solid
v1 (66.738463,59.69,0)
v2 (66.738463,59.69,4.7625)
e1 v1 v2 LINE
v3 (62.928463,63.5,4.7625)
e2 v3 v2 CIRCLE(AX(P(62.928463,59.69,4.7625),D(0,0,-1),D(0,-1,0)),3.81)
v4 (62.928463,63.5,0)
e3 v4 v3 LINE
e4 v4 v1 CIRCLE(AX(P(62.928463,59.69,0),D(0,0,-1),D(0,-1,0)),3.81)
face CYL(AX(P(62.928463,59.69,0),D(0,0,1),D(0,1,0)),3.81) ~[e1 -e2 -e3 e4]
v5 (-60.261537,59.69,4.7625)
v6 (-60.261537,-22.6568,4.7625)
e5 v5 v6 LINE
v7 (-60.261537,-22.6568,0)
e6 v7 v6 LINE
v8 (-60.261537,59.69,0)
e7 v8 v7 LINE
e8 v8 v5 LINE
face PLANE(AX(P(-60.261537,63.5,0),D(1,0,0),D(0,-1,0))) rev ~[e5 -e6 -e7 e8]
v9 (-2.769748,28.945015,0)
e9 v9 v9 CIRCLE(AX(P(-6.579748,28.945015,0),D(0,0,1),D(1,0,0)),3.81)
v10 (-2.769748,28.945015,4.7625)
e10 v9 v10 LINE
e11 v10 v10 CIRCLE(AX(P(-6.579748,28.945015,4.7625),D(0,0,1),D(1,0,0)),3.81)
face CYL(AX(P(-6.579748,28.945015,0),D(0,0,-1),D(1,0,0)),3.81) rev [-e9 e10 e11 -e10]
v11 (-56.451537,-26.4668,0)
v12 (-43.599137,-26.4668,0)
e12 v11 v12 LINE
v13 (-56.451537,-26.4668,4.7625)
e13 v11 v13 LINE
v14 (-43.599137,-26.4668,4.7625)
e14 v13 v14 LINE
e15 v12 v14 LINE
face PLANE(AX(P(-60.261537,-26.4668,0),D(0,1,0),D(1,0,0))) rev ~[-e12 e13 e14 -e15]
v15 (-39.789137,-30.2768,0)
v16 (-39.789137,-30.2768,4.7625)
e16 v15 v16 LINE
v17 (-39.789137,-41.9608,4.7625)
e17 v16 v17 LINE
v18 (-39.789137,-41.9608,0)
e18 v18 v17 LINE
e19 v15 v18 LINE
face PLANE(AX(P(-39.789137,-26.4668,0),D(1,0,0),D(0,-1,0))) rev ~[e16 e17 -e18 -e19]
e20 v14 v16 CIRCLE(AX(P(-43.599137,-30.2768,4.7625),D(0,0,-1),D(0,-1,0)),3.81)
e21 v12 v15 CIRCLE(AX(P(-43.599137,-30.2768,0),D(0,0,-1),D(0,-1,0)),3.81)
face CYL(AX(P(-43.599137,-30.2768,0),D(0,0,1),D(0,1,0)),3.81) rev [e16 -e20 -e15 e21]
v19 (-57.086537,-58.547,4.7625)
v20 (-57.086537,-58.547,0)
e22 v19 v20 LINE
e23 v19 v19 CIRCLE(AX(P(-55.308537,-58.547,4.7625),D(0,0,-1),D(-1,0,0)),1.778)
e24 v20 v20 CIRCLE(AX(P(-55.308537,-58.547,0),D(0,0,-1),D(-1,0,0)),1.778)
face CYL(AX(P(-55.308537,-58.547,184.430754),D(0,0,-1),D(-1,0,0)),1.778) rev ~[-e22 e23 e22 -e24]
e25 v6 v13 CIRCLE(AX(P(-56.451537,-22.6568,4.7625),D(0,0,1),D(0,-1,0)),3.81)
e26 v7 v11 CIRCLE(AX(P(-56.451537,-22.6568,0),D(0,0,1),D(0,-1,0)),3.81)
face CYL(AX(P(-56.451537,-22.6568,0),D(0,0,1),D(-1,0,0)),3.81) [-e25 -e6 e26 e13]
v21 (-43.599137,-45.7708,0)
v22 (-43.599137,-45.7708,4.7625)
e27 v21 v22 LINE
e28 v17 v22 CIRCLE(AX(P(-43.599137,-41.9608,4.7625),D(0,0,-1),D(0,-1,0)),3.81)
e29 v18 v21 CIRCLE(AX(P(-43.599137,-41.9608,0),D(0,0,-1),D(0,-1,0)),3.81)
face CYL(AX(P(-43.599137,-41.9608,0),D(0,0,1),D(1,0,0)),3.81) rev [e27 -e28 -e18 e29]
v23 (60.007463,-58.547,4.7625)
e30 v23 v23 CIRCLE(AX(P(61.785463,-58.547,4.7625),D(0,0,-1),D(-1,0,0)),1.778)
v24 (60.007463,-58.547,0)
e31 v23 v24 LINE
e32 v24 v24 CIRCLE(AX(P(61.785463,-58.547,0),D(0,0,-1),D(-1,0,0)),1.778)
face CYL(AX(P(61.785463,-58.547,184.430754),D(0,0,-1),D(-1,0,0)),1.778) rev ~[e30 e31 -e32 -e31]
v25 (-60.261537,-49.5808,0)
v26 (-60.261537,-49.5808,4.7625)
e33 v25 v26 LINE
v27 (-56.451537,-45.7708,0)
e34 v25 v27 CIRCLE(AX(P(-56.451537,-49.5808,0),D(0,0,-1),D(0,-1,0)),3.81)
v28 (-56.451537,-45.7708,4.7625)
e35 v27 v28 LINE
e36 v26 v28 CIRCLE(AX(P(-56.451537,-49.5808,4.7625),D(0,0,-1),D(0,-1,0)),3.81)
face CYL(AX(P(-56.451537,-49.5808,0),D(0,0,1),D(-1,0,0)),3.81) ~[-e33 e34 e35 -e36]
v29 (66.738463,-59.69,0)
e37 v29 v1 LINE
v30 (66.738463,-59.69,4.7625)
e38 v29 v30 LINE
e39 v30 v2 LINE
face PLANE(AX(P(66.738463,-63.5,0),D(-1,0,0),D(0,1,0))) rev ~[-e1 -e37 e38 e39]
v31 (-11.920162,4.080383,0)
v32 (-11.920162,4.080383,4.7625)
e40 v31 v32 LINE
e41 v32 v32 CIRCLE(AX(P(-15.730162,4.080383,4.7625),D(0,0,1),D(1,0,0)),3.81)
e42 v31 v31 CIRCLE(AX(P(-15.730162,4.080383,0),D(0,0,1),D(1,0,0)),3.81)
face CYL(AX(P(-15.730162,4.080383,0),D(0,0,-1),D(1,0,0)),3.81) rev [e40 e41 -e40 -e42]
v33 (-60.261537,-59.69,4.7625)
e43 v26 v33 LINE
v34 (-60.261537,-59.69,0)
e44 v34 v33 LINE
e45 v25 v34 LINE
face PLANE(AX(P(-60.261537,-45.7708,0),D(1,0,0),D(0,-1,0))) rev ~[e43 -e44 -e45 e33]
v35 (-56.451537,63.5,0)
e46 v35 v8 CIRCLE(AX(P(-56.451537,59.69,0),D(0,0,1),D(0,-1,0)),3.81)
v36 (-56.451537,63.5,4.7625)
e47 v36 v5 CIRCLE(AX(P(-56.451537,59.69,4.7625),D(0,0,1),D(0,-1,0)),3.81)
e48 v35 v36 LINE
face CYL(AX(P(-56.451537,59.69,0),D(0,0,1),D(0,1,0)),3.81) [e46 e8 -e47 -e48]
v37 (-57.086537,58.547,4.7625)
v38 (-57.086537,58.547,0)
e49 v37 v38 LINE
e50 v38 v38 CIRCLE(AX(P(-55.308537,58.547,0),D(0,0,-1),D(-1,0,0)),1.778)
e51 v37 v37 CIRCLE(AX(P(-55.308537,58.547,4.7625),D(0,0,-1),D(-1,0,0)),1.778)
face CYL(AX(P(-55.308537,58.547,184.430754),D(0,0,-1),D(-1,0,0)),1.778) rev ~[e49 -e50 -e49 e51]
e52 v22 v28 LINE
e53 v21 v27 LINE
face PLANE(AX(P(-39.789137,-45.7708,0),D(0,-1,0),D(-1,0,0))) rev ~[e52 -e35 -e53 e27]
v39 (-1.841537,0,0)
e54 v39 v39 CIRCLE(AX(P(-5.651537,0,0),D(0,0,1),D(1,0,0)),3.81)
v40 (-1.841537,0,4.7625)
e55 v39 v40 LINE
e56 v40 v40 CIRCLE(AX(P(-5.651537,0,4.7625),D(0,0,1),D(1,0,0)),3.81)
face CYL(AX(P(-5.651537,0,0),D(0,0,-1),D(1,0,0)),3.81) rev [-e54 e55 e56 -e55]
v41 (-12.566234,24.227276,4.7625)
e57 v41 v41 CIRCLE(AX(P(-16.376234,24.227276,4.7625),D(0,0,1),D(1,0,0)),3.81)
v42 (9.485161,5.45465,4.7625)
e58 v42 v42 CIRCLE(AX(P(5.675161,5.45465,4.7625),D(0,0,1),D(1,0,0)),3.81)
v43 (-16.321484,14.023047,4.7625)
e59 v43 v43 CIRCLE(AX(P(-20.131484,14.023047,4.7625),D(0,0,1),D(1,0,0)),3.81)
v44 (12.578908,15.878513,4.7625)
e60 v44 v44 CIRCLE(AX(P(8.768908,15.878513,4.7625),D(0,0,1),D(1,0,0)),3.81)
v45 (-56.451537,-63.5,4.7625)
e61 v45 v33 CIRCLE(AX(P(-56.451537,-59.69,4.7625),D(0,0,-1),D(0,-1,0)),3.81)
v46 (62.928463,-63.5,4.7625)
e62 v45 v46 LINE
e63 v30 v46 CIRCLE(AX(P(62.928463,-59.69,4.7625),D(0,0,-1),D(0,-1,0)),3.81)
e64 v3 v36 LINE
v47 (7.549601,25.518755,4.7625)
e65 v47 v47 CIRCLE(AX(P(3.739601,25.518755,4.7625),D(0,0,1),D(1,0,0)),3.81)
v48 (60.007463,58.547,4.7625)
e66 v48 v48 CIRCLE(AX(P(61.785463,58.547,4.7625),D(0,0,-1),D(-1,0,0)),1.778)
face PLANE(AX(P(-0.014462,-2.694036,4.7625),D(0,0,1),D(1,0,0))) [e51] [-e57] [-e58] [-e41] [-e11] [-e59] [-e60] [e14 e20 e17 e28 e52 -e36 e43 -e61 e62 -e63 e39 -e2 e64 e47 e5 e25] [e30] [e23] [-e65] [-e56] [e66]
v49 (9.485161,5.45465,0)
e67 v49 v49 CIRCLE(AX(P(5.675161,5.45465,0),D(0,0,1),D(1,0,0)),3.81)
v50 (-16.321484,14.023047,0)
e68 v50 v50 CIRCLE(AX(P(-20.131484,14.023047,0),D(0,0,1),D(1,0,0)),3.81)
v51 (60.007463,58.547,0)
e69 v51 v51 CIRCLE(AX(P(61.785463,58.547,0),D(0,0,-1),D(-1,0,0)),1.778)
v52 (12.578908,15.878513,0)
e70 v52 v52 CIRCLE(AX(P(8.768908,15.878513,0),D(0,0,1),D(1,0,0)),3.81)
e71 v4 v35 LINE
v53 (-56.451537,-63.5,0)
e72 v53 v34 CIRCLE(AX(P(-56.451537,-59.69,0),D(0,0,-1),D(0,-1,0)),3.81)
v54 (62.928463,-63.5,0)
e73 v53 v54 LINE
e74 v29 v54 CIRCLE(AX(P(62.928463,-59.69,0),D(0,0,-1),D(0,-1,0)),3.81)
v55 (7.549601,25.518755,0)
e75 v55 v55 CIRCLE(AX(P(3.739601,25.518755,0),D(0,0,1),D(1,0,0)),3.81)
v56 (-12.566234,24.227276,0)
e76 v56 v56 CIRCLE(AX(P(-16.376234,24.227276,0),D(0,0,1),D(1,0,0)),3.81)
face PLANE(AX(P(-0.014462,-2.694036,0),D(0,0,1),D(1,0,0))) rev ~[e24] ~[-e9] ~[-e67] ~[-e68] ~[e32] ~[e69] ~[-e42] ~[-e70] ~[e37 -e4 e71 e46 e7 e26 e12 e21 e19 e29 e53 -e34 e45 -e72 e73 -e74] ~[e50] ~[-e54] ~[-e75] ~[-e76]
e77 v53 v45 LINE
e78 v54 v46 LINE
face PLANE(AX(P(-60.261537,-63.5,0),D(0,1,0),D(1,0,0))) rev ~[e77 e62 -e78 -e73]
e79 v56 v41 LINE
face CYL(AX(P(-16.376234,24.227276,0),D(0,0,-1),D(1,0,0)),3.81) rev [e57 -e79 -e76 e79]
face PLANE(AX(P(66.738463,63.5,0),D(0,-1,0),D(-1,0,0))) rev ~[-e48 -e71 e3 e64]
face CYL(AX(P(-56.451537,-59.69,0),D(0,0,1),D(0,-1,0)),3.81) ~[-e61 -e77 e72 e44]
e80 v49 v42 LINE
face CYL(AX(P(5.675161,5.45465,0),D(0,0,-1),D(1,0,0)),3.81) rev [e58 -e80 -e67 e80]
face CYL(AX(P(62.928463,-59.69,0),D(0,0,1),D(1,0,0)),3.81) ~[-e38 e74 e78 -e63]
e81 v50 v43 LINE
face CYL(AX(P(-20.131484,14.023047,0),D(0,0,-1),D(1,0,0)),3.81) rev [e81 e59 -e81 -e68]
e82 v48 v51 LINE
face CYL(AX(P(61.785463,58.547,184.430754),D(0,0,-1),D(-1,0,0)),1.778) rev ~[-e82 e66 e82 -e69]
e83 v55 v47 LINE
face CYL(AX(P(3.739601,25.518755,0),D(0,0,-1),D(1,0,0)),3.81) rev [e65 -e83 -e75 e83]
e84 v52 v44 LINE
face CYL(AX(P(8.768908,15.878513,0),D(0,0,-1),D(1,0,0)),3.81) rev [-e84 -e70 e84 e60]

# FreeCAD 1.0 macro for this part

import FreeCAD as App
import Part
import Sketcher
from FreeCAD import Vector
Q = App.Units.Quantity


def edges_at(feature, points):
    """Names of the edges that pass closest to the given points."""
    edges = feature.Shape.Edges
    near = lambda p: min(range(len(edges)), key=lambda i: edges[i].distToShape(Part.Vertex(*p))[0])
    return sorted({f"Edge{near(p) + 1}" for p in points})

doc = App.newDocument("Part")
params = doc.addObject("Spreadsheet::Sheet", "Params")
for row, (alias, value) in enumerate([
    ("sketch1_diameter", "0.3 in"),
    ("sketch1_width", "5 in"),
    ("sketch1_height", "0.76 in"),
    ("sketch1_width2", "0.806 in"),
    ("sketch1_height2", "3.542 in"),
    ("pad1_length", "0.1875 in"),
    ("sketch2_diameter", "0.14 in"),
    ("hole_diameter", "0.14 in"),
    ("fillet_radius", "0.15 in"),
], start=1):
    params.set(f"A{row}", alias)
    params.set(f"B{row}", "=" + value)
    params.setAlias(f"B{row}", alias)

body = doc.addObject("PartDesign::Body", "Body")

sketch1 = doc.addObject("Sketcher::SketchObject", "Sketch")
body.addObject(sketch1)
sketch1.AttachmentSupport = (doc.XY_Plane, [""])
sketch1.MapMode = "FlatFace"
sketch1.addGeometry(Part.LineSegment(Vector(66.738463, 63.5, 0), Vector(-60.261537, 63.5, 0)), False)
sketch1.addGeometry(Part.LineSegment(Vector(-60.261537, 63.5, 0), Vector(-60.261537, -26.4668, 0)), False)
sketch1.addGeometry(Part.LineSegment(Vector(-60.261537, -26.4668, 0), Vector(-39.789137, -26.4668, 0)), False)
sketch1.addGeometry(Part.LineSegment(Vector(-39.789137, -26.4668, 0), Vector(-39.789137, -45.7708, 0)), False)
sketch1.addGeometry(Part.LineSegment(Vector(-39.789137, -45.7708, 0), Vector(-60.261537, -45.7708, 0)), False)
sketch1.addGeometry(Part.LineSegment(Vector(-60.261537, -45.7708, 0), Vector(-60.261537, -63.5, 0)), False)
sketch1.addGeometry(Part.LineSegment(Vector(-60.261537, -63.5, 0), Vector(66.738463, -63.5, 0)), False)
sketch1.addGeometry(Part.LineSegment(Vector(66.738463, -63.5, 0), Vector(66.738463, 63.5, 0)), False)
sketch1.addGeometry(Part.Circle(Vector(-15.730162, 4.080383, 0), Vector(0, 0, 1), 3.81), False)
sketch1.addGeometry(Part.Circle(Vector(-20.131484, 14.023047, 0), Vector(0, 0, 1), 3.81), False)
sketch1.addGeometry(Part.Circle(Vector(-5.651537, 0, 0), Vector(0, 0, 1), 3.81), False)
sketch1.addGeometry(Part.Circle(Vector(5.675161, 5.45465, 0), Vector(0, 0, 1), 3.81), False)
sketch1.addGeometry(Part.Circle(Vector(-16.376234, 24.227276, 0), Vector(0, 0, 1), 3.81), False)
sketch1.addGeometry(Part.Circle(Vector(-6.579748, 28.945015, 0), Vector(0, 0, 1), 3.81), False)
sketch1.addGeometry(Part.Circle(Vector(8.768908, 15.878513, 0), Vector(0, 0, 1), 3.81), False)
sketch1.addGeometry(Part.Circle(Vector(3.739601, 25.518755, 0), Vector(0, 0, 1), 3.81), False)
sketch1.addConstraint(Sketcher.Constraint("Coincident", 0, 2, 1, 1))
sketch1.addConstraint(Sketcher.Constraint("Coincident", 1, 2, 2, 1))
sketch1.addConstraint(Sketcher.Constraint("Coincident", 2, 2, 3, 1))
sketch1.addConstraint(Sketcher.Constraint("Coincident", 3, 2, 4, 1))
sketch1.addConstraint(Sketcher.Constraint("Coincident", 4, 2, 5, 1))
sketch1.addConstraint(Sketcher.Constraint("Coincident", 5, 2, 6, 1))
sketch1.addConstraint(Sketcher.Constraint("Coincident", 6, 2, 7, 1))
sketch1.addConstraint(Sketcher.Constraint("Coincident", 7, 2, 0, 1))
sketch1.addConstraint(Sketcher.Constraint("Horizontal", 0))
sketch1.addConstraint(Sketcher.Constraint("Vertical", 1))
sketch1.addConstraint(Sketcher.Constraint("Horizontal", 2))
sketch1.addConstraint(Sketcher.Constraint("Vertical", 3))
sketch1.addConstraint(Sketcher.Constraint("Horizontal", 4))
sketch1.addConstraint(Sketcher.Constraint("Vertical", 5))
sketch1.addConstraint(Sketcher.Constraint("Horizontal", 6))
sketch1.addConstraint(Sketcher.Constraint("Vertical", 7))
sketch1.addConstraint(Sketcher.Constraint("Equal", 8, 9))
sketch1.addConstraint(Sketcher.Constraint("Equal", 9, 10))
sketch1.addConstraint(Sketcher.Constraint("Equal", 10, 11))
sketch1.addConstraint(Sketcher.Constraint("Equal", 11, 12))
sketch1.addConstraint(Sketcher.Constraint("Equal", 12, 13))
sketch1.addConstraint(Sketcher.Constraint("Equal", 13, 14))
sketch1.addConstraint(Sketcher.Constraint("Equal", 14, 15))
sketch1.addConstraint(Sketcher.Constraint("Symmetric", 0, 2, 5, 2, -1))
sketch1.addConstraint(Sketcher.Constraint("PointOnObject", 10, 3, -1))
sketch1.addConstraint(Sketcher.Constraint("Equal", 6, 7))
sketch1.addConstraint(Sketcher.Constraint("Diameter", 8, Q("0.3 in")))
sketch1.addConstraint(Sketcher.Constraint("DistanceX", 0, 2, 0, 1, Q("5 in")))
sketch1.addConstraint(Sketcher.Constraint("DistanceY", 3, 2, 3, 1, Q("0.76 in")))
sketch1.addConstraint(Sketcher.Constraint("DistanceX", 2, 1, 2, 2, Q("0.806 in")))
sketch1.addConstraint(Sketcher.Constraint("DistanceY", 1, 2, 1, 1, Q("3.542 in")))
sketch1.addConstraint(Sketcher.Constraint("DistanceX", 1, 2, 10, 3, Q("2.15 in")))
sketch1.addConstraint(Sketcher.Constraint("DistanceX", -1, 1, 15, 3, 3.739601))
sketch1.addConstraint(Sketcher.Constraint("DistanceX", 11, 3, 6, 2, 61.063302))
sketch1.addConstraint(Sketcher.Constraint("DistanceX", -1, 1, 11, 3, 5.675161))
sketch1.addConstraint(Sketcher.Constraint("DistanceY", -1, 1, 11, 3, 5.45465))
sketch1.addConstraint(Sketcher.Constraint("DistanceX", 13, 3, -1, 1, 6.579748))
sketch1.addConstraint(Sketcher.Constraint("DistanceX", 9, 3, 12, 3, 3.75525))
sketch1.addConstraint(Sketcher.Constraint("DistanceY", 9, 3, 12, 3, 10.204229))
sketch1.addConstraint(Sketcher.Constraint("DistanceY", 12, 3, 13, 3, 4.717739))
sketch1.addConstraint(Sketcher.Constraint("DistanceX", 12, 3, 14, 3, 25.145142))
sketch1.addConstraint(Sketcher.Constraint("DistanceX", 8, 3, 14, 3, 24.49907))
sketch1.addConstraint(Sketcher.Constraint("DistanceY", 8, 3, 14, 3, 11.79813))
sketch1.addConstraint(Sketcher.Constraint("DistanceY", 14, 3, 15, 3, 9.640242))
sketch1.addConstraint(Sketcher.Constraint("DistanceY", 15, 3, 13, 3, 3.42626))
sketch1.addConstraint(Sketcher.Constraint("DistanceX", 8, 3, -1, 1, 15.730162))
sketch1.addConstraint(Sketcher.Constraint("DistanceY", -1, 1, 8, 3, 4.080383))
sketch1.setExpression("Constraints[26]", "Params.sketch1_diameter")
sketch1.setExpression("Constraints[27]", "Params.sketch1_width")
sketch1.setExpression("Constraints[28]", "Params.sketch1_height")
sketch1.setExpression("Constraints[29]", "Params.sketch1_width2")
sketch1.setExpression("Constraints[30]", "Params.sketch1_height2")
pad1 = doc.addObject("PartDesign::Pad", "Pad")
body.addObject(pad1)
pad1.Profile = sketch1
pad1.setExpression("Length", "Params.pad1_length")

sketch2 = doc.addObject("Sketcher::SketchObject", "Sketch001")
body.addObject(sketch2)
sketch2.AttachmentSupport = (doc.XY_Plane, [""])
sketch2.MapMode = "FlatFace"
sketch2.AttachmentOffset = App.Placement(Vector(0, 0, 0.1875 * 25.4), App.Rotation())
sketch2.addGeometry(Part.Circle(Vector(-55.308537, 58.547, 0), Vector(0, 0, 1), 1.778), False)
sketch2.addGeometry(Part.Circle(Vector(61.785463, 58.547, 0), Vector(0, 0, 1), 1.778), False)
sketch2.addGeometry(Part.Circle(Vector(-55.308537, -58.547, 0), Vector(0, 0, 1), 1.778), False)
sketch2.addGeometry(Part.Circle(Vector(61.785463, -58.547, 0), Vector(0, 0, 1), 1.778), False)
sketch2.addConstraint(Sketcher.Constraint("Equal", 0, 1))
sketch2.addConstraint(Sketcher.Constraint("Equal", 1, 2))
sketch2.addConstraint(Sketcher.Constraint("Equal", 2, 3))
sketch2.addConstraint(Sketcher.Constraint("Symmetric", 0, 3, 2, 3, -1))
sketch2.addConstraint(Sketcher.Constraint("Symmetric", 1, 3, 3, 3, -1))
sketch2.addConstraint(Sketcher.Constraint("Horizontal", 0, 3, 1, 3))
sketch2.addConstraint(Sketcher.Constraint("Diameter", 0, Q("0.14 in")))
sketch2.addConstraint(Sketcher.Constraint("DistanceX", 0, 3, 1, 3, Q("4.61 in")))
sketch2.addConstraint(Sketcher.Constraint("DistanceY", 2, 3, 0, 3, Q("4.61 in")))
sketch2.addConstraint(Sketcher.Constraint("DistanceX", 0, 3, -1, 1, 55.308537))
sketch2.setExpression("Constraints[6]", "Params.sketch2_diameter")
doc.recompute()
hole = doc.addObject("PartDesign::Hole", "Hole")
body.addObject(hole)
hole.Profile = sketch2
hole.ThreadType = "None"
hole.setExpression("Diameter", "Params.hole_diameter")
hole.DepthType = "ThroughAll"
doc.recompute()

fillet = doc.addObject("PartDesign::Fillet", "Fillet")
body.addObject(fillet)
fillet.Base = (hole, edges_at(hole, [
    (-60.262, 63.5, 2.381),
    (-60.262, -63.5, 2.381),
    (66.738, -63.5, 2.381),
    (66.738, 63.5, 2.381),
    (-60.262, -26.467, 2.381),
    (-60.262, -45.771, 2.381),
    (-39.789, -26.467, 2.381),
    (-39.789, -45.771, 2.381),
]))
fillet.setExpression("Radius", "Params.fillet_radius")

doc.recompute()
